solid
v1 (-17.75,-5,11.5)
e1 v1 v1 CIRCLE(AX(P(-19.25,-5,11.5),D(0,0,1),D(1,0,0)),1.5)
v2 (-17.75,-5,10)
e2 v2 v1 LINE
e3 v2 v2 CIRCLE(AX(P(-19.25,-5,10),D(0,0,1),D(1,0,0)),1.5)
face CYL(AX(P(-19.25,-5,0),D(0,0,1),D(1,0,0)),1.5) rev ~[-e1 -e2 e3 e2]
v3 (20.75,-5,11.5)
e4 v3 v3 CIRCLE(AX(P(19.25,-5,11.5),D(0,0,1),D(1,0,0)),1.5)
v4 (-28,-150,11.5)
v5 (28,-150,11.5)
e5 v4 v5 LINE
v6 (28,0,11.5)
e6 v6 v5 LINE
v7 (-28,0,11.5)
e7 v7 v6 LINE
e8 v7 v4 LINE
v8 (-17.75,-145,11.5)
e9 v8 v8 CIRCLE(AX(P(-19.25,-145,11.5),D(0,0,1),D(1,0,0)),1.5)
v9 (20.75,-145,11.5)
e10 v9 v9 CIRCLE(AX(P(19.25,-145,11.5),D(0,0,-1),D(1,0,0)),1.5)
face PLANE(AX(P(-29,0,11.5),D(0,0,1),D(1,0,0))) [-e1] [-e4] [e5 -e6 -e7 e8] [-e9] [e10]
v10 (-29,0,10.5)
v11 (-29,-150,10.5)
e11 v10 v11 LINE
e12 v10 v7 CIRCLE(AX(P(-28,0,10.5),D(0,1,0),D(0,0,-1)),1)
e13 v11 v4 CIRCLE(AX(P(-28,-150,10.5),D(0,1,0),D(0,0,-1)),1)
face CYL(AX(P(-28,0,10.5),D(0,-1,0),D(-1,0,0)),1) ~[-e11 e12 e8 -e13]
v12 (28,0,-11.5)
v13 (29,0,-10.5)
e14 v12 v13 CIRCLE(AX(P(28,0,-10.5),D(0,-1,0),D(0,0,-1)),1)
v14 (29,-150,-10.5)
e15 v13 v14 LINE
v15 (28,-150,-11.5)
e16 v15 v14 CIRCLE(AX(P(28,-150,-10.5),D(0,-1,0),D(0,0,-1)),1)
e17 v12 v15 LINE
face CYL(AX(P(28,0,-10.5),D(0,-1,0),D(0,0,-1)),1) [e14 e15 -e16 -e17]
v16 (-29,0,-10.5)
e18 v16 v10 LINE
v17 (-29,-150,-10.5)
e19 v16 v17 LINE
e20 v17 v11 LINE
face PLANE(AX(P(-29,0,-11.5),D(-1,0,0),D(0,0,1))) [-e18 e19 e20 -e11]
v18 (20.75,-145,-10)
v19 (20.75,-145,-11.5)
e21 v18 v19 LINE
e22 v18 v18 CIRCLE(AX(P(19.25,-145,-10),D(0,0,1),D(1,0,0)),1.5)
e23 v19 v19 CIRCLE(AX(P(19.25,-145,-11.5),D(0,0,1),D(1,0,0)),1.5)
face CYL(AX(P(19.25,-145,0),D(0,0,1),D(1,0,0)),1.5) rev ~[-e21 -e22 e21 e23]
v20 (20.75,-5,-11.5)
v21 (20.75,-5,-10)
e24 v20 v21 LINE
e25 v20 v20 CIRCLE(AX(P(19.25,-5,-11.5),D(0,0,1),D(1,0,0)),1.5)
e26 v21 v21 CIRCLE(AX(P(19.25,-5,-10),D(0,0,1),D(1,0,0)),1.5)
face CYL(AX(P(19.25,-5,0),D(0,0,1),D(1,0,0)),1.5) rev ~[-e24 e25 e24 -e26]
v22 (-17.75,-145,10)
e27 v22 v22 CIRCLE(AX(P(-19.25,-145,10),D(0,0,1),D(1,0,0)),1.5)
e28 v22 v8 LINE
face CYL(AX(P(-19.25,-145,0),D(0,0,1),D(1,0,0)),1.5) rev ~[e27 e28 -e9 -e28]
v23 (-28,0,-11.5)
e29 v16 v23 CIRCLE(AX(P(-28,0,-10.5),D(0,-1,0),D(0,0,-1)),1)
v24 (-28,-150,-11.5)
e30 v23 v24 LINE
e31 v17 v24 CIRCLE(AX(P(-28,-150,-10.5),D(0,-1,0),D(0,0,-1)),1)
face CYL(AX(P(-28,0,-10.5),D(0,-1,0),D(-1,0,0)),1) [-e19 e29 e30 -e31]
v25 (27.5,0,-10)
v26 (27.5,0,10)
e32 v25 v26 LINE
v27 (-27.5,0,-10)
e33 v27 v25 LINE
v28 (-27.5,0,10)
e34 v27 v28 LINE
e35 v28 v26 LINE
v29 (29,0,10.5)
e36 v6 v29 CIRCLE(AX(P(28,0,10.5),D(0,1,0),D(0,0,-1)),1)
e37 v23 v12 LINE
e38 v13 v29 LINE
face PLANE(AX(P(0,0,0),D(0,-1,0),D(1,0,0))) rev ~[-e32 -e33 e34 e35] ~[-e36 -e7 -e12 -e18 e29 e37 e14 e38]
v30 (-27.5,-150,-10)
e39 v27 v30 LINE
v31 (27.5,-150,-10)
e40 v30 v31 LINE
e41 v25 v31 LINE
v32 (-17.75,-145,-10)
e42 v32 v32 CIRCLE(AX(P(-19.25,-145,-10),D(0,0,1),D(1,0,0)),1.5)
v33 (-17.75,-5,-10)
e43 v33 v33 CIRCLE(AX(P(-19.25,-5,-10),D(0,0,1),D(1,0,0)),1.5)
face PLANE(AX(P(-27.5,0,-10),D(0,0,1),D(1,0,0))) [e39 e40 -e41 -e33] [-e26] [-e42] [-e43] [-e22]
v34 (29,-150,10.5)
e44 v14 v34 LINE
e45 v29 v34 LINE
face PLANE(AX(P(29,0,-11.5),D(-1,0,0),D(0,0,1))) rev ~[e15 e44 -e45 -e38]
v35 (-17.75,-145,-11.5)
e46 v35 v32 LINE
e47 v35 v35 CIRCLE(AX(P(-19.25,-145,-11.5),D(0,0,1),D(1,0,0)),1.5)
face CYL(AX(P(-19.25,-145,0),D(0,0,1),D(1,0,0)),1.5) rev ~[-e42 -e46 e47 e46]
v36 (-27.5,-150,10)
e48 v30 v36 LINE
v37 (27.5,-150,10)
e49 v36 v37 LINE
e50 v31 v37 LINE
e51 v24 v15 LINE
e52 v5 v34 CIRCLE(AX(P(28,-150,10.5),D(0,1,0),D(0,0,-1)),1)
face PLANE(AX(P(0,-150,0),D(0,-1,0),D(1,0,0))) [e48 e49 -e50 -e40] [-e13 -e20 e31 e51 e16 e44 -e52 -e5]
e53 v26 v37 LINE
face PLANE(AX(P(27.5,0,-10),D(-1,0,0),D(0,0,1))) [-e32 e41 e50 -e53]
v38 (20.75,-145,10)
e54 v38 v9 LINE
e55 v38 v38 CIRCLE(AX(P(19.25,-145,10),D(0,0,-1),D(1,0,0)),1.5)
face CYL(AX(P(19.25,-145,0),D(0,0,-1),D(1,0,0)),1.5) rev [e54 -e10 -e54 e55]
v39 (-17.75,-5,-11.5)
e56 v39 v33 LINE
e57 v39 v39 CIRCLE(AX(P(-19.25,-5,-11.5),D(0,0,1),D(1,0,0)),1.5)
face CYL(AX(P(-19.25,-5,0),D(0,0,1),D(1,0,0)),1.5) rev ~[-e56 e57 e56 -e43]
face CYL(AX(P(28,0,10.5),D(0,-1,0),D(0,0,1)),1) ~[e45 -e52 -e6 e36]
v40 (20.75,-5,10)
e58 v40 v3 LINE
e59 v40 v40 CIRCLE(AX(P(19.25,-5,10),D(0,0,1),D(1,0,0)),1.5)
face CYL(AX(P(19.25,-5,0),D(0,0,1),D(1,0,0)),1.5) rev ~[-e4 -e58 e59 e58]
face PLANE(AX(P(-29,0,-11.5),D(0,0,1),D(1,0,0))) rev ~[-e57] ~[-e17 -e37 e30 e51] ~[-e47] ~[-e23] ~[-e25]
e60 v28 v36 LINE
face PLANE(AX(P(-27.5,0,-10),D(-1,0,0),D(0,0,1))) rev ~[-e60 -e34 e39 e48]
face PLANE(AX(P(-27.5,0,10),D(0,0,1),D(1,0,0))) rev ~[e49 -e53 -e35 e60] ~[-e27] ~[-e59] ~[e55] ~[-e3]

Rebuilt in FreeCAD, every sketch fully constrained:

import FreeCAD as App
import Part
import Sketcher
from FreeCAD import Vector


def edges_at(feature, points):
    """Names of the edges that pass closest to the given points."""
    edges = feature.Shape.Edges
    near = lambda p: min(range(len(edges)), key=lambda i: edges[i].distToShape(Part.Vertex(*p))[0])
    return sorted({f"Edge{near(p) + 1}" for p in points})

doc = App.newDocument("Part")
body = doc.addObject("PartDesign::Body", "Body")

# Sketch on XZ plane
sketch1 = body.newObject("Sketcher::SketchObject", "Sketch")
sketch1.AttachmentSupport = (doc.getObject("XZ_Plane"), [""])
sketch1.MapMode = "FlatFace"
sketch1.addGeometry([
    Part.LineSegment(Vector(-29, 12, 0), Vector(-29, -12, 0)),  # 0
    Part.LineSegment(Vector(-29, -12, 0), Vector(29, -12, 0)),  # 1
    Part.LineSegment(Vector(29, -12, 0), Vector(29, 12, 0)),  # 2
    Part.LineSegment(Vector(29, 12, 0), Vector(-29, 12, 0)),  # 3
    Part.LineSegment(Vector(28, -10, 0), Vector(-28, -10, 0)),  # 4
    Part.LineSegment(Vector(-28, -10, 0), Vector(-28, 10, 0)),  # 5
    Part.LineSegment(Vector(-28, 10, 0), Vector(28, 10, 0)),  # 6
    Part.LineSegment(Vector(28, 10, 0), Vector(28, -10, 0)),  # 7
], False)
sketch1.addConstraint([
    Sketcher.Constraint("Coincident", 0, 2, 1, 1),
    Sketcher.Constraint("Coincident", 1, 2, 2, 1),
    Sketcher.Constraint("Coincident", 2, 2, 3, 1),
    Sketcher.Constraint("Coincident", 3, 2, 0, 1),
    Sketcher.Constraint("Coincident", 4, 2, 5, 1),
    Sketcher.Constraint("Coincident", 5, 2, 6, 1),
    Sketcher.Constraint("Coincident", 6, 2, 7, 1),
    Sketcher.Constraint("Coincident", 7, 2, 4, 1),
    Sketcher.Constraint("Vertical", 0),
    Sketcher.Constraint("Horizontal", 1),
    Sketcher.Constraint("Vertical", 2),
    Sketcher.Constraint("Horizontal", 3),
    Sketcher.Constraint("Horizontal", 4),
    Sketcher.Constraint("Vertical", 5),
    Sketcher.Constraint("Horizontal", 6),
    Sketcher.Constraint("Vertical", 7),
    Sketcher.Constraint("Symmetric", 0, 2, 2, 2, -1, 1),
    Sketcher.Constraint("Symmetric", 4, 2, 6, 2, -1, 1),
    Sketcher.Constraint("DistanceX", 1, 1, 1, 2, 58.0),
    Sketcher.Constraint("DistanceX", 4, 2, 4, 1, 55.0),
    Sketcher.Constraint("DistanceY", 0, 2, 0, 1, 23.0),
    Sketcher.Constraint("DistanceY", 5, 1, 5, 2, 20.0),
])
pad1 = body.newObject("PartDesign::Pad", "Pad")
pad1.Profile = sketch1
pad1.Length = 150
doc.recompute()

fillet = body.newObject("PartDesign::Fillet", "Fillet")
fillet.Base = (pad1, edges_at(pad1, [
    (-29, -75, 11.5),
    (29, -75, 11.5),
    (-29, -75, -11.5),
    (29, -75, -11.5),
]))
fillet.Radius = 1

# Sketch on XY plane
sketch2 = body.newObject("Sketcher::SketchObject", "Sketch001")
sketch2.AttachmentSupport = (doc.getObject("XY_Plane"), [""])
sketch2.MapMode = "FlatFace"
sketch2.addGeometry(Part.Circle(Vector(-19.2, -5, 0), Vector(0, 0, 1), 1.5), False)
sketch2.addConstraint([
    Sketcher.Constraint("Diameter", 0, 3.0),
    Sketcher.Constraint("DistanceY", 0, 3, -1, 1, 5.0),
    Sketcher.Constraint("DistanceX", 0, 3, -1, 1, 19.25),
])
pocket1 = body.newObject("PartDesign::Pocket", "Pocket")
pocket1.Profile = sketch2
pocket1.Length = 30
pocket1.Midplane = True

# Sketch on XY plane
sketch3 = body.newObject("Sketcher::SketchObject", "Sketch002")
sketch3.AttachmentSupport = (doc.getObject("XY_Plane"), [""])
sketch3.MapMode = "FlatFace"
sketch3.addGeometry(Part.Circle(Vector(19.2, -5, 0), Vector(0, 0, 1), 1.5), False)
sketch3.addConstraint([
    Sketcher.Constraint("Diameter", 0, 3.0),
    Sketcher.Constraint("DistanceY", 0, 3, -1, 1, 5.0),
    Sketcher.Constraint("DistanceX", -1, 1, 0, 3, 19.25),
])
pocket2 = body.newObject("PartDesign::Pocket", "Pocket001")
pocket2.Profile = sketch3
pocket2.Length = 30
pocket2.Midplane = True

# Sketch on XY plane
sketch4 = body.newObject("Sketcher::SketchObject", "Sketch003")
sketch4.AttachmentSupport = (doc.getObject("XY_Plane"), [""])
sketch4.MapMode = "FlatFace"
sketch4.addGeometry([
    Part.Circle(Vector(19.2, -145, 0), Vector(0, 0, 1), 1.5),
    Part.Circle(Vector(-19.2, -145, 0), Vector(0, 0, 1), 1.5),
], False)
sketch4.addConstraint([
    Sketcher.Constraint("Equal", 0, 1),
    Sketcher.Constraint("Symmetric", 0, 3, 1, 3, -2),
    Sketcher.Constraint("Diameter", 0, 3.0),
    Sketcher.Constraint("DistanceY", 0, 3, -1, 1, 145.0),
    Sketcher.Constraint("DistanceX", 1, 3, 0, 3, 38.5),
])
pocket3 = body.newObject("PartDesign::Pocket", "Pocket002")
pocket3.Profile = sketch4
pocket3.Length = 30
pocket3.Midplane = True

doc.recompute()
